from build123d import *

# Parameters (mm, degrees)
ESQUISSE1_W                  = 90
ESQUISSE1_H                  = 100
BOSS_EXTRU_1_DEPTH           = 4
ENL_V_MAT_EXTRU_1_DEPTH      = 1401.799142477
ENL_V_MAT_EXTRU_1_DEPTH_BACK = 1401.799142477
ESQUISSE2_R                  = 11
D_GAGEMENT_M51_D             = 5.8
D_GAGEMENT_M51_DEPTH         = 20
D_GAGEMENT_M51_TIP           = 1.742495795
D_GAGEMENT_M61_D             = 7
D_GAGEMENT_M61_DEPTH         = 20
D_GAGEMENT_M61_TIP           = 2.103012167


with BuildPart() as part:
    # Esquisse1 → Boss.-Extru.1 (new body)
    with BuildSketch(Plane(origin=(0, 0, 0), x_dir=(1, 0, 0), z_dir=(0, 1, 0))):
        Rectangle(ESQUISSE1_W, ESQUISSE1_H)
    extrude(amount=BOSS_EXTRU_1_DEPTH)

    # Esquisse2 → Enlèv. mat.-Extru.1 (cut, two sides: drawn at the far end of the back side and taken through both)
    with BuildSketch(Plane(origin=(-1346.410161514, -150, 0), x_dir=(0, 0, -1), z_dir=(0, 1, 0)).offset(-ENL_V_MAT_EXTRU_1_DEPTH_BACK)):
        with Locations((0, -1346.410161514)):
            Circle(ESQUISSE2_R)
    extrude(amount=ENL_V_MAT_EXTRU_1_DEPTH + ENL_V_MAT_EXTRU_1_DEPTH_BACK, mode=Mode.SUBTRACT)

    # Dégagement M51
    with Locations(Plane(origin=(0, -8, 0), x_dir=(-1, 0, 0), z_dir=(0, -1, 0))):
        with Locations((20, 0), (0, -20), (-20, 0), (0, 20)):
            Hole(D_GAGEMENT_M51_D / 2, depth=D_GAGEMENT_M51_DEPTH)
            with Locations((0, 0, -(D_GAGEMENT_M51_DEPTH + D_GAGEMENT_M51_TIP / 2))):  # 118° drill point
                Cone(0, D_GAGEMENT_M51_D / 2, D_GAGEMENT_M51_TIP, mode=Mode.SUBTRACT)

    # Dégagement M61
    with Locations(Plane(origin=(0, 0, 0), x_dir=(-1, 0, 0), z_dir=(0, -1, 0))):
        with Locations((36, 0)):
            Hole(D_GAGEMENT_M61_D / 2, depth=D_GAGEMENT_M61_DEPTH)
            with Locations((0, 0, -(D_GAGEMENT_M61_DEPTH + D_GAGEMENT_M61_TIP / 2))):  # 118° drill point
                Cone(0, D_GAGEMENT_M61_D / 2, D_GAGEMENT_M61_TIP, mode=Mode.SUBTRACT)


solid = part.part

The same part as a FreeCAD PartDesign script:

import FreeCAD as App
import Part
import Sketcher

V = App.Vector
Q = App.Units.Quantity

doc = App.newDocument("Part")
params = doc.addObject("Spreadsheet::Sheet", "Params")
for row, (alias, value) in enumerate([
    ("sketch1_width", "90 mm"),
    ("sketch1_height", "100 mm"),
    ("pad1_length", "4 mm"),
    ("sketch2_diameter", "22 mm"),
    ("sketch3_diameter", "5.8 mm"),
    ("hole_diameter", "5.8 mm"),
    ("hole_depth", "20 mm"),
    ("sketch4_diameter", "7 mm"),
    ("hole2_diameter", "7 mm"),
    ("hole2_depth", "20 mm"),
], start=1):
    params.set(f"A{row}", alias)
    params.set(f"B{row}", "=" + value)
    params.setAlias(f"B{row}", alias)

body = doc.addObject("PartDesign::Body", "Body")

# Sketch on XZ plane
sketch1 = doc.addObject("Sketcher::SketchObject", "Sketch")
body.addObject(sketch1)
sketch1.AttachmentSupport = (doc.XZ_Plane, [""])
sketch1.MapMode = "FlatFace"
sketch1.addGeometry(Part.LineSegment(V(-45, -50, 0), V(-45, 50, 0)), False)
sketch1.addGeometry(Part.LineSegment(V(-45, 50, 0), V(45, 50, 0)), False)
sketch1.addGeometry(Part.LineSegment(V(45, 50, 0), V(45, -50, 0)), False)
sketch1.addGeometry(Part.LineSegment(V(45, -50, 0), V(-45, -50, 0)), False)
sketch1.addConstraint(Sketcher.Constraint("Coincident", 0, 2, 1, 1))
sketch1.addConstraint(Sketcher.Constraint("Coincident", 1, 2, 2, 1))
sketch1.addConstraint(Sketcher.Constraint("Coincident", 2, 2, 3, 1))
sketch1.addConstraint(Sketcher.Constraint("Coincident", 3, 2, 0, 1))
sketch1.addConstraint(Sketcher.Constraint("Vertical", 0))
sketch1.addConstraint(Sketcher.Constraint("Horizontal", 1))
sketch1.addConstraint(Sketcher.Constraint("Vertical", 2))
sketch1.addConstraint(Sketcher.Constraint("Horizontal", 3))
sketch1.addConstraint(Sketcher.Constraint("Symmetric", 0, 2, 2, 2, -1, 1))
sketch1.addConstraint(Sketcher.Constraint("DistanceX", 1, 1, 1, 2, Q("90 mm")))
sketch1.addConstraint(Sketcher.Constraint("DistanceY", 0, 1, 0, 2, Q("100 mm")))
sketch1.setExpression("Constraints[9]", "Params.sketch1_width")
sketch1.setExpression("Constraints[10]", "Params.sketch1_height")
pad1 = doc.addObject("PartDesign::Pad", "Pad")
body.addObject(pad1)
pad1.Profile = sketch1
pad1.setExpression("Length", "Params.pad1_length")
pad1.Reversed = True

# Sketch on XZ plane
sketch2 = doc.addObject("Sketcher::SketchObject", "Sketch001")
body.addObject(sketch2)
sketch2.AttachmentSupport = (doc.XZ_Plane, [""])
sketch2.MapMode = "FlatFace"
sketch2.AttachmentOffset = App.Placement(V(0, 0, 150), App.Rotation())
sketch2.addGeometry(Part.Circle(V(0, 0, 0), V(0, 0, 1), 11), False)
sketch2.addConstraint(Sketcher.Constraint("Coincident", 0, 3, -1, 1))
sketch2.addConstraint(Sketcher.Constraint("Diameter", 0, Q("22 mm")))
sketch2.setExpression("Constraints[1]", "Params.sketch2_diameter")
pocket1 = doc.addObject("PartDesign::Pocket", "Pocket")
body.addObject(pocket1)
pocket1.Profile = sketch2
pocket1.Type = "ThroughAll"
pocket1.Midplane = True

# Sketch on XZ plane
sketch3 = doc.addObject("Sketcher::SketchObject", "Sketch002")
body.addObject(sketch3)
sketch3.AttachmentSupport = (doc.XZ_Plane, [""])
sketch3.MapMode = "FlatFace"
sketch3.AttachmentOffset = App.Placement(V(0, 0, 8), App.Rotation())
sketch3.addGeometry(Part.Circle(V(-20, 0, 0), V(0, 0, 1), 2.9), False)
sketch3.addGeometry(Part.Circle(V(0, 20, 0), V(0, 0, 1), 2.9), False)
sketch3.addGeometry(Part.Circle(V(20, 0, 0), V(0, 0, 1), 2.9), False)
sketch3.addGeometry(Part.Circle(V(0, -20, 0), V(0, 0, 1), 2.9), False)
sketch3.addConstraint(Sketcher.Constraint("Equal", 0, 1))
sketch3.addConstraint(Sketcher.Constraint("Equal", 1, 2))
sketch3.addConstraint(Sketcher.Constraint("Equal", 2, 3))
sketch3.addConstraint(Sketcher.Constraint("Symmetric", 0, 3, 2, 3, -1, 1))
sketch3.addConstraint(Sketcher.Constraint("Symmetric", 1, 3, 3, 3, -1, 1))
sketch3.addConstraint(Sketcher.Constraint("PointOnObject", 0, 3, -1))
sketch3.addConstraint(Sketcher.Constraint("PointOnObject", 1, 3, -2))
sketch3.addConstraint(Sketcher.Constraint("Diameter", 0, Q("5.8 mm")))
sketch3.addConstraint(Sketcher.Constraint("DistanceX", 0, 3, -1, 1, Q("20 mm")))
sketch3.addConstraint(Sketcher.Constraint("DistanceY", -1, 1, 1, 3, Q("20 mm")))
sketch3.setExpression("Constraints[7]", "Params.sketch3_diameter")
doc.recompute()
hole = doc.addObject("PartDesign::Hole", "Hole")
body.addObject(hole)
hole.Profile = sketch3
hole.ThreadType = "None"
hole.setExpression("Diameter", "Params.hole_diameter")
hole.DepthType = "Dimension"
hole.setExpression("Depth", "Params.hole_depth")
hole.DrillPoint = "Angled"
hole.DrillPointAngle = 118

# Sketch on XZ plane
sketch4 = doc.addObject("Sketcher::SketchObject", "Sketch003")
body.addObject(sketch4)
sketch4.AttachmentSupport = (doc.XZ_Plane, [""])
sketch4.MapMode = "FlatFace"
sketch4.addGeometry(Part.Circle(V(-36, 0, 0), V(0, 0, 1), 3.5), False)
sketch4.addConstraint(Sketcher.Constraint("PointOnObject", 0, 3, -1))
sketch4.addConstraint(Sketcher.Constraint("Diameter", 0, Q("7 mm")))
sketch4.addConstraint(Sketcher.Constraint("DistanceX", 0, 3, -1, 1, Q("36 mm")))
sketch4.setExpression("Constraints[1]", "Params.sketch4_diameter")
doc.recompute()
hole2 = doc.addObject("PartDesign::Hole", "Hole001")
body.addObject(hole2)
hole2.Profile = sketch4
hole2.ThreadType = "None"
hole2.setExpression("Diameter", "Params.hole2_diameter")
hole2.DepthType = "Dimension"
hole2.setExpression("Depth", "Params.hole2_depth")
hole2.DrillPoint = "Angled"
hole2.DrillPointAngle = 118

doc.recompute()
